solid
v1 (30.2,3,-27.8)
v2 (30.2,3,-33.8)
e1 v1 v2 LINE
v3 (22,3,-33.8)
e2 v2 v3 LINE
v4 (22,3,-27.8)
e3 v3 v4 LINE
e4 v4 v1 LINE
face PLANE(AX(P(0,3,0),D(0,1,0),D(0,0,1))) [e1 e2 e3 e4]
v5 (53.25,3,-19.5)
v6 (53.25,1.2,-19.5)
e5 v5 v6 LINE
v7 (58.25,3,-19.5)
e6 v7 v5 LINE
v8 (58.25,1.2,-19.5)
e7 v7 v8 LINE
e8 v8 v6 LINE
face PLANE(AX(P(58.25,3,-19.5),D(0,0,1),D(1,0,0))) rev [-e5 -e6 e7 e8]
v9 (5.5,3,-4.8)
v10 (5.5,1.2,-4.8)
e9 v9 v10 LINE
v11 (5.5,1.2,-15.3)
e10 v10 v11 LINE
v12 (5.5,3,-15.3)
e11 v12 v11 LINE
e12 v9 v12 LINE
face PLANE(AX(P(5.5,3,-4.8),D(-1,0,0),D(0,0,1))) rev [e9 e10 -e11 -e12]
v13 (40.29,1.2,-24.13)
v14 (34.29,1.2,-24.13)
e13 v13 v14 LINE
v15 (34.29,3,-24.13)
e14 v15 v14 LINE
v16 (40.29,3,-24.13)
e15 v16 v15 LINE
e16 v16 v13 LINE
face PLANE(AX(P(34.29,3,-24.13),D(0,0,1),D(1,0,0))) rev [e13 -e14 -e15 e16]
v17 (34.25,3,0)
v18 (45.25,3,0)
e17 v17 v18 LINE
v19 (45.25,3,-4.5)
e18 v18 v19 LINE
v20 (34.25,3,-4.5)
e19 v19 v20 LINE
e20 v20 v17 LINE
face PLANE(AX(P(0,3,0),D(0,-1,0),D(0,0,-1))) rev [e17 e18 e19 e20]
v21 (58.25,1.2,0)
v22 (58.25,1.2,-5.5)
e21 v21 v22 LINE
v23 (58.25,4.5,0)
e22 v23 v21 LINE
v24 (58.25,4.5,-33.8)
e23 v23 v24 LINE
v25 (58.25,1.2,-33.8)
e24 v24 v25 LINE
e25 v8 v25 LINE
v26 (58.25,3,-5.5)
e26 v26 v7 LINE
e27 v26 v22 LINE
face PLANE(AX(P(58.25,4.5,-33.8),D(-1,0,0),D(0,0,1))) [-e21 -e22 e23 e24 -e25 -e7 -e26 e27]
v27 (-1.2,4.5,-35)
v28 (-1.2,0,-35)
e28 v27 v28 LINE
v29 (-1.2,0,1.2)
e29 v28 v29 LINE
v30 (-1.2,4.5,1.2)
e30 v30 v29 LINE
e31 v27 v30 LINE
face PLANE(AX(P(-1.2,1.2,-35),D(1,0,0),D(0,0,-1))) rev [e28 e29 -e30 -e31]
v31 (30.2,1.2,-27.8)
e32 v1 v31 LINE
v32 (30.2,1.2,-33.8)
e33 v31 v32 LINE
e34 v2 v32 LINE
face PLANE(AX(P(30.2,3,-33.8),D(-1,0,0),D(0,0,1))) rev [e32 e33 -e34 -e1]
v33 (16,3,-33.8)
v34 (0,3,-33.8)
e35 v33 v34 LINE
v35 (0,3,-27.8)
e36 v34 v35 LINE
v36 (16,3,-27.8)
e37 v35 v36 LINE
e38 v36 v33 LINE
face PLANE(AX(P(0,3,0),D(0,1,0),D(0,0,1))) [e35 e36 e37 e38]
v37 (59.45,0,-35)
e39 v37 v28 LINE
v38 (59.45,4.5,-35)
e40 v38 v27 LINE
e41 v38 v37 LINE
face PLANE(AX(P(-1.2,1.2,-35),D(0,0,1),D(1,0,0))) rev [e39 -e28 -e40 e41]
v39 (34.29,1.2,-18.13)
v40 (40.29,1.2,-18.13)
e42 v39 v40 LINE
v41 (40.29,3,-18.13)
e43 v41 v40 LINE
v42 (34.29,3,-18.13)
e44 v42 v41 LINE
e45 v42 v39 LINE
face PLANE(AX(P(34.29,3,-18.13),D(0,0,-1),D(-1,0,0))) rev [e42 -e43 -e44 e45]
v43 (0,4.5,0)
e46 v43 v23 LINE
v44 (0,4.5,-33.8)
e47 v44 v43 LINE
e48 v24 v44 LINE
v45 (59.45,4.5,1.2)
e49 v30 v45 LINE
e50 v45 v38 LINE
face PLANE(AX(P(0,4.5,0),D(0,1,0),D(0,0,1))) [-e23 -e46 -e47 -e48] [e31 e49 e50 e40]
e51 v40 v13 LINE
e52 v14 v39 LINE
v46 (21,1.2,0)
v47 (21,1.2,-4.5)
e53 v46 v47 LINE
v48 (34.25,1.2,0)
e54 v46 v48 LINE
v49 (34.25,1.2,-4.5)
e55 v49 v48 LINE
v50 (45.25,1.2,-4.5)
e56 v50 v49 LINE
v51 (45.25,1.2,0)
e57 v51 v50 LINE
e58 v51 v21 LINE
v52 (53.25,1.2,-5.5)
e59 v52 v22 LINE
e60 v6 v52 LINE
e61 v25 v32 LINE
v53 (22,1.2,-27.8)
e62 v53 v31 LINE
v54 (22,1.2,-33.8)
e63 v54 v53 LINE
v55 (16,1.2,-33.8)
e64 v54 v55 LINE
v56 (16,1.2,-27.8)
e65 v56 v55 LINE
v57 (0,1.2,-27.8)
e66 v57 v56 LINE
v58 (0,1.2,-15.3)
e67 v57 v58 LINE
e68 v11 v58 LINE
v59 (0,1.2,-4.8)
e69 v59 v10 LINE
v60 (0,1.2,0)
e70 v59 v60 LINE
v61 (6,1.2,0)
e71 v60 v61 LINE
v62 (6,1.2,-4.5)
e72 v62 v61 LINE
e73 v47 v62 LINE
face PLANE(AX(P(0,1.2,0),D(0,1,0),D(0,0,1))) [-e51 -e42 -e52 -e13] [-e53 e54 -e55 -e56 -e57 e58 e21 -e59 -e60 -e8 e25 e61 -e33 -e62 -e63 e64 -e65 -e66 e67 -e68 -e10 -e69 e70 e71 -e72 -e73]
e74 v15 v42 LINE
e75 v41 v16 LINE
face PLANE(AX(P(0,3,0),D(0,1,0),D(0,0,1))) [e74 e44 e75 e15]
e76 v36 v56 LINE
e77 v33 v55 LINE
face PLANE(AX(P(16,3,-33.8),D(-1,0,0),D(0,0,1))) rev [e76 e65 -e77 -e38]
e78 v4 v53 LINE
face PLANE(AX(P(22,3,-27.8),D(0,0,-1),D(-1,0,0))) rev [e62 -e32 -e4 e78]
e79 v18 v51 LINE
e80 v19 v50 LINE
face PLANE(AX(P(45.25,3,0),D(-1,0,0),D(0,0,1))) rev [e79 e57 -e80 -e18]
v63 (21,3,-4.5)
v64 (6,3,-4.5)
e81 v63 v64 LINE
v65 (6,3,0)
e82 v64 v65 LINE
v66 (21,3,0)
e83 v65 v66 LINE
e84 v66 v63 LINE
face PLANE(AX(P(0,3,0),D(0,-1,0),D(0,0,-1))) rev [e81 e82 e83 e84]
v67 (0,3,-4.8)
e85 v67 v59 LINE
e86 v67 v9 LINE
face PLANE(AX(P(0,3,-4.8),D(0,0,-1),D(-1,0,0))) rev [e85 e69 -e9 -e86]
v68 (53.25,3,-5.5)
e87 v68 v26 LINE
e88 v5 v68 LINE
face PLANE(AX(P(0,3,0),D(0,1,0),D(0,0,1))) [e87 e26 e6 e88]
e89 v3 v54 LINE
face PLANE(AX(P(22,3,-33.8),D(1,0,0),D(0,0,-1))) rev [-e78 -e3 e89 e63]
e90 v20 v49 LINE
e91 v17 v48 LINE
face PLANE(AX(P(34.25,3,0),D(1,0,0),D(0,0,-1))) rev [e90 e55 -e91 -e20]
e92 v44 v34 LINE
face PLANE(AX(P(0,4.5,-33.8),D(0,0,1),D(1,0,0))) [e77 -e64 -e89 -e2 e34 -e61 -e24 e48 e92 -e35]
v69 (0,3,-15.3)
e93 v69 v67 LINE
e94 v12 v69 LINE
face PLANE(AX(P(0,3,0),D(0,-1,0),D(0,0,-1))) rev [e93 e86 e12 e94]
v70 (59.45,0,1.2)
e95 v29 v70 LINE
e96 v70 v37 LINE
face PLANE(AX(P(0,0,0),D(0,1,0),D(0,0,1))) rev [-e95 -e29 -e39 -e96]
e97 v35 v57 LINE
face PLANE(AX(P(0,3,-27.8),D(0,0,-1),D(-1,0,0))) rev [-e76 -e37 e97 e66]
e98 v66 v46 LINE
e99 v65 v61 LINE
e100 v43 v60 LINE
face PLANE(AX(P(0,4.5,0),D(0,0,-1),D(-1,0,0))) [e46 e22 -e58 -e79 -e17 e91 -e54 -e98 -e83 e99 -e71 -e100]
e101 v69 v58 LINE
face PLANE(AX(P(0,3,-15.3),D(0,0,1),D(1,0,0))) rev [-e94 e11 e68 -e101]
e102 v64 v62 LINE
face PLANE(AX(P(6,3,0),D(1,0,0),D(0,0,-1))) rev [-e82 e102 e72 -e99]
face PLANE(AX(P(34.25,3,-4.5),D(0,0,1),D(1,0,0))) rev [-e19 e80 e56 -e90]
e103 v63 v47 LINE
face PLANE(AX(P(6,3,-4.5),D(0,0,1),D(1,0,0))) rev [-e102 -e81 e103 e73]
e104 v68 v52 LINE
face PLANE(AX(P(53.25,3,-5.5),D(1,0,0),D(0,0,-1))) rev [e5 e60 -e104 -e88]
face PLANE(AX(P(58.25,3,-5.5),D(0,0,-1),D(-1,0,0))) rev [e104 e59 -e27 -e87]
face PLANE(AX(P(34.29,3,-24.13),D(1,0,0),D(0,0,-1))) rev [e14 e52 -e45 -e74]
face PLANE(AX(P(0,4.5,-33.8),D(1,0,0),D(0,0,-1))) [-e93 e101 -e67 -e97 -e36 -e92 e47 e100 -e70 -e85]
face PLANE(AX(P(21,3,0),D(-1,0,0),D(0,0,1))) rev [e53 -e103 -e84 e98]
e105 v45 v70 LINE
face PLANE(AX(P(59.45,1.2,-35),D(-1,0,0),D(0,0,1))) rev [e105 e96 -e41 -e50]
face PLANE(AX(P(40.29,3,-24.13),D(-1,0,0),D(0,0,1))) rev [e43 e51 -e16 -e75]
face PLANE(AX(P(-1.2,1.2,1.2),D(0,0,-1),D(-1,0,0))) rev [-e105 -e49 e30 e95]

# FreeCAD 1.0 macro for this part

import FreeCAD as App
import Part
import Sketcher
from FreeCAD import Vector
Q = App.Units.Quantity

doc = App.newDocument("Part")
params = doc.addObject("Spreadsheet::Sheet", "Params")
for row, (alias, value) in enumerate([
    ("sketch1_height", "36.2 mm"),
    ("sketch1_width", "60.65 mm"),
    ("pad1_length", "1.2 mm"),
    ("sketch2_height", "36.2 mm"),
    ("sketch2_height2", "33.8 mm"),
    ("sketch2_width", "60.65 mm"),
    ("sketch2_width2", "58.25 mm"),
    ("pad2_length", "3.3 mm"),
    ("sketch3_width", "16 mm"),
    ("sketch3_width2", "11 mm"),
    ("sketch3_width3", "15 mm"),
    ("sketch3_width4", "5 mm"),
    ("sketch3_width5", "6 mm"),
    ("pad3_length", "1.8 mm"),
], start=1):
    params.set(f"A{row}", alias)
    params.set(f"B{row}", "=" + value)
    params.setAlias(f"B{row}", alias)

body = doc.addObject("PartDesign::Body", "Body")

# Sketch on XZ plane
sketch1 = body.newObject("Sketcher::SketchObject", "Sketch")
sketch1.AttachmentSupport = (doc.getObject("XZ_Plane"), [""])
sketch1.MapMode = "FlatFace"
sketch1.addGeometry(Part.LineSegment(Vector(-1.2, -35, 0), Vector(-1.2, 1.2, 0)), False)
sketch1.addGeometry(Part.LineSegment(Vector(-1.2, 1.2, 0), Vector(59.45, 1.2, 0)), False)
sketch1.addGeometry(Part.LineSegment(Vector(59.45, 1.2, 0), Vector(59.45, -35, 0)), False)
sketch1.addGeometry(Part.LineSegment(Vector(59.45, -35, 0), Vector(-1.2, -35, 0)), False)
sketch1.addConstraint(Sketcher.Constraint("Coincident", 0, 2, 1, 1))
sketch1.addConstraint(Sketcher.Constraint("Coincident", 1, 2, 2, 1))
sketch1.addConstraint(Sketcher.Constraint("Coincident", 2, 2, 3, 1))
sketch1.addConstraint(Sketcher.Constraint("Coincident", 3, 2, 0, 1))
sketch1.addConstraint(Sketcher.Constraint("Vertical", 0))
sketch1.addConstraint(Sketcher.Constraint("Horizontal", 1))
sketch1.addConstraint(Sketcher.Constraint("Vertical", 2))
sketch1.addConstraint(Sketcher.Constraint("Horizontal", 3))
sketch1.addConstraint(Sketcher.Constraint("DistanceY", 0, 1, 0, 2, Q("36.2 mm")))
sketch1.addConstraint(Sketcher.Constraint("DistanceY", 2, 2, -1, 1, Q("35 mm")))
sketch1.addConstraint(Sketcher.Constraint("DistanceX", 1, 1, 1, 2, Q("60.65 mm")))
sketch1.addConstraint(Sketcher.Constraint("DistanceX", 0, 2, -1, 1, Q("1.2 mm")))
sketch1.setExpression("Constraints[8]", "Params.sketch1_height")
sketch1.setExpression("Constraints[10]", "Params.sketch1_width")
pad1 = body.newObject("PartDesign::Pad", "Pad")
pad1.Profile = sketch1
pad1.setExpression("Length", "Params.pad1_length")
pad1.Reversed = True

# Sketch on XZ plane
sketch2 = body.newObject("Sketcher::SketchObject", "Sketch001")
sketch2.AttachmentSupport = (doc.getObject("XZ_Plane"), [""])
sketch2.MapMode = "FlatFace"
sketch2.AttachmentOffset = App.Placement(Vector(0, 0, -1.2), App.Rotation())
sketch2.addGeometry(Part.LineSegment(Vector(-1.2, -35, 0), Vector(-1.2, 1.2, 0)), False)
sketch2.addGeometry(Part.LineSegment(Vector(-1.2, 1.2, 0), Vector(59.45, 1.2, 0)), False)
sketch2.addGeometry(Part.LineSegment(Vector(59.45, 1.2, 0), Vector(59.45, -35, 0)), False)
sketch2.addGeometry(Part.LineSegment(Vector(59.45, -35, 0), Vector(-1.2, -35, 0)), False)
sketch2.addGeometry(Part.LineSegment(Vector(58.25, 0, 0), Vector(0, 0, 0)), False)
sketch2.addGeometry(Part.LineSegment(Vector(0, 0, 0), Vector(0, -33.8, 0)), False)
sketch2.addGeometry(Part.LineSegment(Vector(0, -33.8, 0), Vector(58.25, -33.8, 0)), False)
sketch2.addGeometry(Part.LineSegment(Vector(58.25, -33.8, 0), Vector(58.25, 0, 0)), False)
sketch2.addConstraint(Sketcher.Constraint("Coincident", 0, 2, 1, 1))
sketch2.addConstraint(Sketcher.Constraint("Coincident", 1, 2, 2, 1))
sketch2.addConstraint(Sketcher.Constraint("Coincident", 2, 2, 3, 1))
sketch2.addConstraint(Sketcher.Constraint("Coincident", 3, 2, 0, 1))
sketch2.addConstraint(Sketcher.Constraint("Coincident", 4, 2, 5, 1))
sketch2.addConstraint(Sketcher.Constraint("Coincident", 5, 2, 6, 1))
sketch2.addConstraint(Sketcher.Constraint("Coincident", 6, 2, 7, 1))
sketch2.addConstraint(Sketcher.Constraint("Coincident", 7, 2, 4, 1))
sketch2.addConstraint(Sketcher.Constraint("Vertical", 0))
sketch2.addConstraint(Sketcher.Constraint("Horizontal", 1))
sketch2.addConstraint(Sketcher.Constraint("Vertical", 2))
sketch2.addConstraint(Sketcher.Constraint("Horizontal", 3))
sketch2.addConstraint(Sketcher.Constraint("Horizontal", 4))
sketch2.addConstraint(Sketcher.Constraint("Vertical", 5))
sketch2.addConstraint(Sketcher.Constraint("Horizontal", 6))
sketch2.addConstraint(Sketcher.Constraint("Vertical", 7))
sketch2.addConstraint(Sketcher.Constraint("Coincident", 4, 2, -1, 1))
sketch2.addConstraint(Sketcher.Constraint("DistanceY", 0, 1, 0, 2, Q("36.2 mm")))
sketch2.addConstraint(Sketcher.Constraint("DistanceY", 5, 2, 5, 1, Q("33.8 mm")))
sketch2.addConstraint(Sketcher.Constraint("DistanceY", 2, 2, -1, 1, Q("35 mm")))
sketch2.addConstraint(Sketcher.Constraint("DistanceX", 1, 1, 1, 2, Q("60.65 mm")))
sketch2.addConstraint(Sketcher.Constraint("DistanceX", 4, 2, 4, 1, Q("58.25 mm")))
sketch2.addConstraint(Sketcher.Constraint("DistanceX", 0, 2, -1, 1, Q("1.2 mm")))
sketch2.setExpression("Constraints[17]", "Params.sketch2_height")
sketch2.setExpression("Constraints[18]", "Params.sketch2_height2")
sketch2.setExpression("Constraints[20]", "Params.sketch2_width")
sketch2.setExpression("Constraints[21]", "Params.sketch2_width2")
pad2 = body.newObject("PartDesign::Pad", "Pad001")
pad2.Profile = sketch2
pad2.setExpression("Length", "Params.pad2_length")
pad2.Reversed = True

# Sketch on XZ plane
sketch3 = body.newObject("Sketcher::SketchObject", "Sketch002")
sketch3.AttachmentSupport = (doc.getObject("XZ_Plane"), [""])
sketch3.MapMode = "FlatFace"
sketch3.AttachmentOffset = App.Placement(Vector(0, 0, -1.2), App.Rotation())
sketch3.addGeometry(Part.LineSegment(Vector(0, -33.8, 0), Vector(0, -27.8, 0)), False)
sketch3.addGeometry(Part.LineSegment(Vector(0, -27.8, 0), Vector(16, -27.8, 0)), False)
sketch3.addGeometry(Part.LineSegment(Vector(16, -27.8, 0), Vector(16, -33.8, 0)), False)
sketch3.addGeometry(Part.LineSegment(Vector(16, -33.8, 0), Vector(0, -33.8, 0)), False)
sketch3.addGeometry(Part.LineSegment(Vector(0, -15.3, 0), Vector(0, -4.8, 0)), False)
sketch3.addGeometry(Part.LineSegment(Vector(0, -4.8, 0), Vector(5.5, -4.8, 0)), False)
sketch3.addGeometry(Part.LineSegment(Vector(5.5, -4.8, 0), Vector(5.5, -15.3, 0)), False)
sketch3.addGeometry(Part.LineSegment(Vector(5.5, -15.3, 0), Vector(0, -15.3, 0)), False)
sketch3.addGeometry(Part.LineSegment(Vector(34.25, -4.5, 0), Vector(34.25, 0, 0)), False)
sketch3.addGeometry(Part.LineSegment(Vector(34.25, 0, 0), Vector(45.25, 0, 0)), False)
sketch3.addGeometry(Part.LineSegment(Vector(45.25, 0, 0), Vector(45.25, -4.5, 0)), False)
sketch3.addGeometry(Part.LineSegment(Vector(45.25, -4.5, 0), Vector(34.25, -4.5, 0)), False)
sketch3.addGeometry(Part.LineSegment(Vector(6, -4.5, 0), Vector(6, 0, 0)), False)
sketch3.addGeometry(Part.LineSegment(Vector(6, 0, 0), Vector(21, 0, 0)), False)
sketch3.addGeometry(Part.LineSegment(Vector(21, 0, 0), Vector(21, -4.5, 0)), False)
sketch3.addGeometry(Part.LineSegment(Vector(21, -4.5, 0), Vector(6, -4.5, 0)), False)
sketch3.addGeometry(Part.LineSegment(Vector(53.25, -19.5, 0), Vector(53.25, -5.5, 0)), False)
sketch3.addGeometry(Part.LineSegment(Vector(53.25, -5.5, 0), Vector(58.25, -5.5, 0)), False)
sketch3.addGeometry(Part.LineSegment(Vector(58.25, -5.5, 0), Vector(58.25, -19.5, 0)), False)
sketch3.addGeometry(Part.LineSegment(Vector(58.25, -19.5, 0), Vector(53.25, -19.5, 0)), False)
sketch3.addGeometry(Part.LineSegment(Vector(22, -33.8, 0), Vector(22, -27.8, 0)), False)
sketch3.addGeometry(Part.LineSegment(Vector(22, -27.8, 0), Vector(30.2, -27.8, 0)), False)
sketch3.addGeometry(Part.LineSegment(Vector(30.2, -27.8, 0), Vector(30.2, -33.8, 0)), False)
sketch3.addGeometry(Part.LineSegment(Vector(30.2, -33.8, 0), Vector(22, -33.8, 0)), False)
sketch3.addGeometry(Part.LineSegment(Vector(34.29, -24.13, 0), Vector(34.29, -18.13, 0)), False)
sketch3.addGeometry(Part.LineSegment(Vector(34.29, -18.13, 0), Vector(40.29, -18.13, 0)), False)
sketch3.addGeometry(Part.LineSegment(Vector(40.29, -18.13, 0), Vector(40.29, -24.13, 0)), False)
sketch3.addGeometry(Part.LineSegment(Vector(40.29, -24.13, 0), Vector(34.29, -24.13, 0)), False)
sketch3.addConstraint(Sketcher.Constraint("Coincident", 0, 2, 1, 1))
sketch3.addConstraint(Sketcher.Constraint("Coincident", 1, 2, 2, 1))
sketch3.addConstraint(Sketcher.Constraint("Coincident", 2, 2, 3, 1))
sketch3.addConstraint(Sketcher.Constraint("Coincident", 3, 2, 0, 1))
sketch3.addConstraint(Sketcher.Constraint("Coincident", 4, 2, 5, 1))
sketch3.addConstraint(Sketcher.Constraint("Coincident", 5, 2, 6, 1))
sketch3.addConstraint(Sketcher.Constraint("Coincident", 6, 2, 7, 1))
sketch3.addConstraint(Sketcher.Constraint("Coincident", 7, 2, 4, 1))
sketch3.addConstraint(Sketcher.Constraint("Coincident", 8, 2, 9, 1))
sketch3.addConstraint(Sketcher.Constraint("Coincident", 9, 2, 10, 1))
sketch3.addConstraint(Sketcher.Constraint("Coincident", 10, 2, 11, 1))
sketch3.addConstraint(Sketcher.Constraint("Coincident", 11, 2, 8, 1))
sketch3.addConstraint(Sketcher.Constraint("Coincident", 12, 2, 13, 1))
sketch3.addConstraint(Sketcher.Constraint("Coincident", 13, 2, 14, 1))
sketch3.addConstraint(Sketcher.Constraint("Coincident", 14, 2, 15, 1))
sketch3.addConstraint(Sketcher.Constraint("Coincident", 15, 2, 12, 1))
sketch3.addConstraint(Sketcher.Constraint("Coincident", 16, 2, 17, 1))
sketch3.addConstraint(Sketcher.Constraint("Coincident", 17, 2, 18, 1))
sketch3.addConstraint(Sketcher.Constraint("Coincident", 18, 2, 19, 1))
sketch3.addConstraint(Sketcher.Constraint("Coincident", 19, 2, 16, 1))
sketch3.addConstraint(Sketcher.Constraint("Coincident", 20, 2, 21, 1))
sketch3.addConstraint(Sketcher.Constraint("Coincident", 21, 2, 22, 1))
sketch3.addConstraint(Sketcher.Constraint("Coincident", 22, 2, 23, 1))
sketch3.addConstraint(Sketcher.Constraint("Coincident", 23, 2, 20, 1))
sketch3.addConstraint(Sketcher.Constraint("Coincident", 24, 2, 25, 1))
sketch3.addConstraint(Sketcher.Constraint("Coincident", 25, 2, 26, 1))
sketch3.addConstraint(Sketcher.Constraint("Coincident", 26, 2, 27, 1))
sketch3.addConstraint(Sketcher.Constraint("Coincident", 27, 2, 24, 1))
sketch3.addConstraint(Sketcher.Constraint("Vertical", 0))
sketch3.addConstraint(Sketcher.Constraint("Horizontal", 1))
sketch3.addConstraint(Sketcher.Constraint("Vertical", 2))
sketch3.addConstraint(Sketcher.Constraint("Horizontal", 3))
sketch3.addConstraint(Sketcher.Constraint("Vertical", 4))
sketch3.addConstraint(Sketcher.Constraint("Horizontal", 5))
sketch3.addConstraint(Sketcher.Constraint("Vertical", 6))
sketch3.addConstraint(Sketcher.Constraint("Horizontal", 7))
sketch3.addConstraint(Sketcher.Constraint("Vertical", 8))
sketch3.addConstraint(Sketcher.Constraint("Horizontal", 9))
sketch3.addConstraint(Sketcher.Constraint("Vertical", 10))
sketch3.addConstraint(Sketcher.Constraint("Horizontal", 11))
sketch3.addConstraint(Sketcher.Constraint("Vertical", 12))
sketch3.addConstraint(Sketcher.Constraint("Horizontal", 13))
sketch3.addConstraint(Sketcher.Constraint("Vertical", 14))
sketch3.addConstraint(Sketcher.Constraint("Horizontal", 15))
sketch3.addConstraint(Sketcher.Constraint("Vertical", 16))
sketch3.addConstraint(Sketcher.Constraint("Horizontal", 17))
sketch3.addConstraint(Sketcher.Constraint("Vertical", 18))
sketch3.addConstraint(Sketcher.Constraint("Horizontal", 19))
sketch3.addConstraint(Sketcher.Constraint("Vertical", 20))
sketch3.addConstraint(Sketcher.Constraint("Horizontal", 21))
sketch3.addConstraint(Sketcher.Constraint("Vertical", 22))
sketch3.addConstraint(Sketcher.Constraint("Horizontal", 23))
sketch3.addConstraint(Sketcher.Constraint("Vertical", 24))
sketch3.addConstraint(Sketcher.Constraint("Horizontal", 25))
sketch3.addConstraint(Sketcher.Constraint("Vertical", 26))
sketch3.addConstraint(Sketcher.Constraint("Horizontal", 27))
sketch3.addConstraint(Sketcher.Constraint("PointOnObject", 0, 2, -2))
sketch3.addConstraint(Sketcher.Constraint("PointOnObject", 4, 2, -2))
sketch3.addConstraint(Sketcher.Constraint("PointOnObject", 8, 2, -1))
sketch3.addConstraint(Sketcher.Constraint("PointOnObject", 12, 2, -1))
sketch3.addConstraint(Sketcher.Constraint("Horizontal", 11, 2, 14, 2))
sketch3.addConstraint(Sketcher.Constraint("Horizontal", 1, 2, 20, 2))
sketch3.addConstraint(Sketcher.Constraint("Horizontal", 3, 2, 22, 2))
sketch3.addConstraint(Sketcher.Constraint("Equal", 27, 0))
sketch3.addConstraint(Sketcher.Constraint("Equal", 22, 24))
sketch3.addConstraint(Sketcher.Constraint("DistanceX", 1, 1, 1, 2, Q("16 mm")))
sketch3.addConstraint(Sketcher.Constraint("DistanceX", 9, 1, 9, 2, Q("11 mm")))
sketch3.addConstraint(Sketcher.Constraint("DistanceX", 13, 1, 13, 2, Q("15 mm")))
sketch3.addConstraint(Sketcher.Constraint("DistanceX", 17, 1, 17, 2, Q("5 mm")))
sketch3.addConstraint(Sketcher.Constraint("DistanceX", 25, 1, 25, 2, Q("6 mm")))
sketch3.addConstraint(Sketcher.Constraint("DistanceY", 16, 1, 16, 2, Q("14 mm")))
sketch3.addConstraint(Sketcher.Constraint("DistanceX", 5, 1, 5, 2, Q("5.5 mm")))
sketch3.addConstraint(Sketcher.Constraint("DistanceX", 21, 1, 21, 2, Q("8.2 mm")))
sketch3.addConstraint(Sketcher.Constraint("DistanceY", 4, 1, 4, 2, Q("10.5 mm")))
sketch3.addConstraint(Sketcher.Constraint("DistanceY", 8, 1, 8, 2, Q("4.5 mm")))
sketch3.addConstraint(Sketcher.Constraint("DistanceX", -1, 1, 12, 2, Q("6 mm")))
sketch3.addConstraint(Sketcher.Constraint("DistanceX", -1, 1, 20, 2, Q("22 mm")))
sketch3.addConstraint(Sketcher.Constraint("DistanceY", 0, 2, 4, 2, Q("23 mm")))
sketch3.addConstraint(Sketcher.Constraint("DistanceX", 10, 2, 16, 2, Q("8 mm")))
sketch3.addConstraint(Sketcher.Constraint("DistanceY", 16, 2, 10, 2, Q("1 mm")))
sketch3.addConstraint(Sketcher.Constraint("DistanceY", 0, 2, -1, 1, Q("27.8 mm")))
sketch3.addConstraint(Sketcher.Constraint("DistanceX", -1, 1, 8, 2, Q("34.25 mm")))
sketch3.addConstraint(Sketcher.Constraint("DistanceX", -1, 1, 24, 2, Q("34.29 mm")))
sketch3.addConstraint(Sketcher.Constraint("DistanceY", 24, 2, -1, 1, Q("18.13 mm")))
sketch3.setExpression("Constraints[65]", "Params.sketch3_width")
sketch3.setExpression("Constraints[66]", "Params.sketch3_width2")
sketch3.setExpression("Constraints[67]", "Params.sketch3_width3")
sketch3.setExpression("Constraints[68]", "Params.sketch3_width4")
sketch3.setExpression("Constraints[69]", "Params.sketch3_width5")
pad3 = body.newObject("PartDesign::Pad", "Pad002")
pad3.Profile = sketch3
pad3.setExpression("Length", "Params.pad3_length")
pad3.Reversed = True

doc.recompute()
